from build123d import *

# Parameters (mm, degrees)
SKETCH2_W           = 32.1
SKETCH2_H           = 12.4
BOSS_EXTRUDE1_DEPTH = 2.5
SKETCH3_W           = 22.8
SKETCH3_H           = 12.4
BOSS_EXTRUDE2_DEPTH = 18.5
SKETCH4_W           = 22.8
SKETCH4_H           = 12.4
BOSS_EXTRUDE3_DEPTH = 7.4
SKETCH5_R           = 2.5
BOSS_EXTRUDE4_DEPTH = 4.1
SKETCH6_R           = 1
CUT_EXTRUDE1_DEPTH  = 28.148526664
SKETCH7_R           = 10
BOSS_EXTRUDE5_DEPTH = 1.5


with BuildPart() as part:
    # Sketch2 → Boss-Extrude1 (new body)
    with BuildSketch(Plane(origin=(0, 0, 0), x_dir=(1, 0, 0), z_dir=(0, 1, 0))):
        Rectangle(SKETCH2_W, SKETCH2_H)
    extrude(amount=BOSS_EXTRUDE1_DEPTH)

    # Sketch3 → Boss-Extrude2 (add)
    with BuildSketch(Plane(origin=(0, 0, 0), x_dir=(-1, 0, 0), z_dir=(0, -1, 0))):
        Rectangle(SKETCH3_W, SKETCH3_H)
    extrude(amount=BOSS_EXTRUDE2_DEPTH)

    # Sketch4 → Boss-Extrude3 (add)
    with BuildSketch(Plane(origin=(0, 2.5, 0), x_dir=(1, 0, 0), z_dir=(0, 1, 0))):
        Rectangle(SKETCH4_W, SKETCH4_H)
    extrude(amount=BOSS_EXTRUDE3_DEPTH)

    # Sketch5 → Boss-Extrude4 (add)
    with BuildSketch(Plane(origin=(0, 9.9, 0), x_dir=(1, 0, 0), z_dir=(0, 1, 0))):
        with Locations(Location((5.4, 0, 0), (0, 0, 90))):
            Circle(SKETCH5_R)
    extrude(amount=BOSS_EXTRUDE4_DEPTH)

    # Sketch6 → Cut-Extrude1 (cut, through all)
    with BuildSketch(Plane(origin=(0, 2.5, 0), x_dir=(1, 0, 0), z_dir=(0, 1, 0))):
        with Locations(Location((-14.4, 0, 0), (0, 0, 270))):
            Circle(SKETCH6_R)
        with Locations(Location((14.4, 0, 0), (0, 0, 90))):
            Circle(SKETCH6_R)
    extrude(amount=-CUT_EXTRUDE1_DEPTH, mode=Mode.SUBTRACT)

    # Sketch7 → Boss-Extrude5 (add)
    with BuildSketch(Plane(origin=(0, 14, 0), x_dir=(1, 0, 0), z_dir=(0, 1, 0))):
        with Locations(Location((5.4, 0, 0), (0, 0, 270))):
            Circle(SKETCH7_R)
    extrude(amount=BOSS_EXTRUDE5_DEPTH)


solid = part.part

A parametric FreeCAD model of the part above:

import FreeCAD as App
import Part
import Sketcher
from FreeCAD import Vector


def add_polygon(sketch, points):
    """Adds a closed chain of lines whose ends are joined by coincident constraints."""
    first, n = sketch.GeometryCount, len(points)
    for a, b in zip(points, points[1:] + points[:1]):
        sketch.addGeometry(Part.LineSegment(App.Vector(*a, 0), App.Vector(*b, 0)), False)
    for i in range(n):
        sketch.addConstraint(Sketcher.Constraint("Coincident", first + i, 2, first + (i + 1) % n, 1))

doc = App.newDocument("Part")
body = doc.addObject("PartDesign::Body", "Body")

# Sketch on XZ plane
sketch1 = doc.addObject("Sketcher::SketchObject", "Sketch")
body.addObject(sketch1)
sketch1.AttachmentSupport = (doc.XZ_Plane, [""])
sketch1.MapMode = "FlatFace"
add_polygon(sketch1, [(-16.05, -6.2), (-16.05, 6.2), (16.05, 6.2), (16.05, -6.2)])  # lines 0-3
sketch1.addConstraint(Sketcher.Constraint("Vertical", 0))
sketch1.addConstraint(Sketcher.Constraint("Horizontal", 1))
sketch1.addConstraint(Sketcher.Constraint("Vertical", 2))
sketch1.addConstraint(Sketcher.Constraint("Horizontal", 3))
sketch1.addConstraint(Sketcher.Constraint("Symmetric", 0, 2, 2, 2, -1, 1))
sketch1.addConstraint(Sketcher.Constraint("DistanceX", 1, 1, 1, 2, 32.1))
sketch1.addConstraint(Sketcher.Constraint("DistanceY", 0, 1, 0, 2, 12.4))
pad1 = doc.addObject("PartDesign::Pad", "Pad")
body.addObject(pad1)
pad1.Profile = sketch1
pad1.Length = 2.5
pad1.Reversed = True

# Sketch on XZ plane
sketch2 = doc.addObject("Sketcher::SketchObject", "Sketch001")
body.addObject(sketch2)
sketch2.AttachmentSupport = (doc.XZ_Plane, [""])
sketch2.MapMode = "FlatFace"
add_polygon(sketch2, [(11.4, -6.2), (11.4, 6.2), (-11.4, 6.2), (-11.4, -6.2)])  # lines 0-3
sketch2.addConstraint(Sketcher.Constraint("Vertical", 0))
sketch2.addConstraint(Sketcher.Constraint("Horizontal", 1))
sketch2.addConstraint(Sketcher.Constraint("Vertical", 2))
sketch2.addConstraint(Sketcher.Constraint("Horizontal", 3))
sketch2.addConstraint(Sketcher.Constraint("Symmetric", 0, 2, 2, 2, -1, 1))
sketch2.addConstraint(Sketcher.Constraint("DistanceX", 1, 2, 1, 1, 22.8))
sketch2.addConstraint(Sketcher.Constraint("DistanceY", 0, 1, 0, 2, 12.4))
pad2 = doc.addObject("PartDesign::Pad", "Pad001")
body.addObject(pad2)
pad2.Profile = sketch2
pad2.Length = 18.5

# Sketch on XZ plane
sketch3 = doc.addObject("Sketcher::SketchObject", "Sketch002")
body.addObject(sketch3)
sketch3.AttachmentSupport = (doc.XZ_Plane, [""])
sketch3.MapMode = "FlatFace"
sketch3.AttachmentOffset = App.Placement(Vector(0, 0, -2.5), App.Rotation())
add_polygon(sketch3, [(-11.4, -6.2), (-11.4, 6.2), (11.4, 6.2), (11.4, -6.2)])  # lines 0-3
sketch3.addConstraint(Sketcher.Constraint("Vertical", 0))
sketch3.addConstraint(Sketcher.Constraint("Horizontal", 1))
sketch3.addConstraint(Sketcher.Constraint("Vertical", 2))
sketch3.addConstraint(Sketcher.Constraint("Horizontal", 3))
sketch3.addConstraint(Sketcher.Constraint("Symmetric", 0, 2, 2, 2, -1, 1))
sketch3.addConstraint(Sketcher.Constraint("DistanceX", 1, 1, 1, 2, 22.8))
sketch3.addConstraint(Sketcher.Constraint("DistanceY", 0, 1, 0, 2, 12.4))
pad3 = doc.addObject("PartDesign::Pad", "Pad002")
body.addObject(pad3)
pad3.Profile = sketch3
pad3.Length = 7.4
pad3.Reversed = True

# Sketch on XZ plane
sketch4 = doc.addObject("Sketcher::SketchObject", "Sketch003")
body.addObject(sketch4)
sketch4.AttachmentSupport = (doc.XZ_Plane, [""])
sketch4.MapMode = "FlatFace"
sketch4.AttachmentOffset = App.Placement(Vector(0, 0, -9.9), App.Rotation())
sketch4.addGeometry(Part.Circle(Vector(5.4, 0, 0), Vector(0, 0, 1), 2.5), False)
sketch4.addConstraint(Sketcher.Constraint("PointOnObject", 0, 3, -1))
sketch4.addConstraint(Sketcher.Constraint("Diameter", 0, 5.0))
sketch4.addConstraint(Sketcher.Constraint("DistanceX", -1, 1, 0, 3, 5.4))
pad4 = doc.addObject("PartDesign::Pad", "Pad003")
body.addObject(pad4)
pad4.Profile = sketch4
pad4.Length = 4.1
pad4.Reversed = True

# Sketch on XZ plane
sketch5 = doc.addObject("Sketcher::SketchObject", "Sketch004")
body.addObject(sketch5)
sketch5.AttachmentSupport = (doc.XZ_Plane, [""])
sketch5.MapMode = "FlatFace"
sketch5.AttachmentOffset = App.Placement(Vector(0, 0, -2.5), App.Rotation())
sketch5.addGeometry(Part.Circle(Vector(-14.4, 0, 0), Vector(0, 0, 1), 1), False)
sketch5.addGeometry(Part.Circle(Vector(14.4, 0, 0), Vector(0, 0, 1), 1), False)
sketch5.addConstraint(Sketcher.Constraint("Equal", 0, 1))
sketch5.addConstraint(Sketcher.Constraint("Symmetric", 0, 3, 1, 3, -1, 1))
sketch5.addConstraint(Sketcher.Constraint("PointOnObject", 0, 3, -1))
sketch5.addConstraint(Sketcher.Constraint("Diameter", 0, 2.0))
sketch5.addConstraint(Sketcher.Constraint("DistanceX", 0, 3, -1, 1, 14.4))
pocket1 = doc.addObject("PartDesign::Pocket", "Pocket")
body.addObject(pocket1)
pocket1.Profile = sketch5
pocket1.Type = "ThroughAll"
pocket1.Reversed = True

# Sketch on XZ plane
sketch6 = doc.addObject("Sketcher::SketchObject", "Sketch005")
body.addObject(sketch6)
sketch6.AttachmentSupport = (doc.XZ_Plane, [""])
sketch6.MapMode = "FlatFace"
sketch6.AttachmentOffset = App.Placement(Vector(0, 0, -14), App.Rotation())
sketch6.addGeometry(Part.Circle(Vector(5.4, 0, 0), Vector(0, 0, 1), 10), False)
sketch6.addConstraint(Sketcher.Constraint("PointOnObject", 0, 3, -1))
sketch6.addConstraint(Sketcher.Constraint("Diameter", 0, 20.0))
sketch6.addConstraint(Sketcher.Constraint("DistanceX", -1, 1, 0, 3, 5.4))
pad5 = doc.addObject("PartDesign::Pad", "Pad004")
body.addObject(pad5)
pad5.Profile = sketch6
pad5.Length = 1.5
pad5.Reversed = True

doc.recompute()
